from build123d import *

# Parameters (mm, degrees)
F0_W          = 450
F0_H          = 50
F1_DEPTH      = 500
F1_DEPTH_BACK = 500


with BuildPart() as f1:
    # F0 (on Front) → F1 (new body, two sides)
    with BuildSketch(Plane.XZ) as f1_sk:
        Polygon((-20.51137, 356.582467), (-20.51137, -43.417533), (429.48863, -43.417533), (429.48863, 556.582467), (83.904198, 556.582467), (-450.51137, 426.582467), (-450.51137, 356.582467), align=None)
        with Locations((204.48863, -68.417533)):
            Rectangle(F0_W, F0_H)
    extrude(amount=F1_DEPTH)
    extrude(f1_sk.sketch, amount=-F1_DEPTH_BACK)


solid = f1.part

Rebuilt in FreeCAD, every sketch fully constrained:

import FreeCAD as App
import Part
import Sketcher
from FreeCAD import Vector
Q = App.Units.Quantity


def add_polygon(sketch, points):
    """Adds a closed chain of lines whose ends are joined by coincident constraints."""
    first, n = sketch.GeometryCount, len(points)
    for a, b in zip(points, points[1:] + points[:1]):
        sketch.addGeometry(Part.LineSegment(App.Vector(*a, 0), App.Vector(*b, 0)), False)
    for i in range(n):
        sketch.addConstraint(Sketcher.Constraint("Coincident", first + i, 2, first + (i + 1) % n, 1))

doc = App.newDocument("Part")
body = doc.addObject("PartDesign::Body", "Body")

sketch1 = body.newObject("Sketcher::SketchObject", "Sketch")
sketch1.AttachmentSupport = (doc.getObject("XZ_Plane"), [""])
sketch1.MapMode = "FlatFace"
add_polygon(sketch1, [(-21, 357), (-21, -93), (429, -93), (429, 557), (84, 557), (-451, 427), (-451, 357)])
sketch1.addConstraint([
    Sketcher.Constraint("Vertical", 0),
    Sketcher.Constraint("Horizontal", 1),
    Sketcher.Constraint("Vertical", 2),
    Sketcher.Constraint("Horizontal", 3),
    Sketcher.Constraint("Vertical", 5),
    Sketcher.Constraint("Horizontal", 6),
    Sketcher.Constraint("Equal", 1, 0),
    Sketcher.Constraint("DistanceX", 1, 1, 1, 2, Q("450 mm")),
    Sketcher.Constraint("DistanceX", 6, 1, 6, 2, Q("430 mm")),
    Sketcher.Constraint("DistanceY", 2, 1, 2, 2, Q("650 mm")),
    Sketcher.Constraint("DistanceY", 5, 2, 5, 1, Q("70 mm")),
    Sketcher.Constraint("Distance", 4, Q("549.999999 mm")),
    Sketcher.Constraint("DistanceX", 0, 2, -1, 1, Q("20.51137 mm")),
    Sketcher.Constraint("DistanceY", 0, 2, -1, 1, Q("93.417533 mm")),
])
pad1 = body.newObject("PartDesign::Pad", "Pad")
pad1.Profile = sketch1
pad1.Type = "TwoLengths"
pad1.Length = 500
pad1.Length2 = 500

doc.recompute()
